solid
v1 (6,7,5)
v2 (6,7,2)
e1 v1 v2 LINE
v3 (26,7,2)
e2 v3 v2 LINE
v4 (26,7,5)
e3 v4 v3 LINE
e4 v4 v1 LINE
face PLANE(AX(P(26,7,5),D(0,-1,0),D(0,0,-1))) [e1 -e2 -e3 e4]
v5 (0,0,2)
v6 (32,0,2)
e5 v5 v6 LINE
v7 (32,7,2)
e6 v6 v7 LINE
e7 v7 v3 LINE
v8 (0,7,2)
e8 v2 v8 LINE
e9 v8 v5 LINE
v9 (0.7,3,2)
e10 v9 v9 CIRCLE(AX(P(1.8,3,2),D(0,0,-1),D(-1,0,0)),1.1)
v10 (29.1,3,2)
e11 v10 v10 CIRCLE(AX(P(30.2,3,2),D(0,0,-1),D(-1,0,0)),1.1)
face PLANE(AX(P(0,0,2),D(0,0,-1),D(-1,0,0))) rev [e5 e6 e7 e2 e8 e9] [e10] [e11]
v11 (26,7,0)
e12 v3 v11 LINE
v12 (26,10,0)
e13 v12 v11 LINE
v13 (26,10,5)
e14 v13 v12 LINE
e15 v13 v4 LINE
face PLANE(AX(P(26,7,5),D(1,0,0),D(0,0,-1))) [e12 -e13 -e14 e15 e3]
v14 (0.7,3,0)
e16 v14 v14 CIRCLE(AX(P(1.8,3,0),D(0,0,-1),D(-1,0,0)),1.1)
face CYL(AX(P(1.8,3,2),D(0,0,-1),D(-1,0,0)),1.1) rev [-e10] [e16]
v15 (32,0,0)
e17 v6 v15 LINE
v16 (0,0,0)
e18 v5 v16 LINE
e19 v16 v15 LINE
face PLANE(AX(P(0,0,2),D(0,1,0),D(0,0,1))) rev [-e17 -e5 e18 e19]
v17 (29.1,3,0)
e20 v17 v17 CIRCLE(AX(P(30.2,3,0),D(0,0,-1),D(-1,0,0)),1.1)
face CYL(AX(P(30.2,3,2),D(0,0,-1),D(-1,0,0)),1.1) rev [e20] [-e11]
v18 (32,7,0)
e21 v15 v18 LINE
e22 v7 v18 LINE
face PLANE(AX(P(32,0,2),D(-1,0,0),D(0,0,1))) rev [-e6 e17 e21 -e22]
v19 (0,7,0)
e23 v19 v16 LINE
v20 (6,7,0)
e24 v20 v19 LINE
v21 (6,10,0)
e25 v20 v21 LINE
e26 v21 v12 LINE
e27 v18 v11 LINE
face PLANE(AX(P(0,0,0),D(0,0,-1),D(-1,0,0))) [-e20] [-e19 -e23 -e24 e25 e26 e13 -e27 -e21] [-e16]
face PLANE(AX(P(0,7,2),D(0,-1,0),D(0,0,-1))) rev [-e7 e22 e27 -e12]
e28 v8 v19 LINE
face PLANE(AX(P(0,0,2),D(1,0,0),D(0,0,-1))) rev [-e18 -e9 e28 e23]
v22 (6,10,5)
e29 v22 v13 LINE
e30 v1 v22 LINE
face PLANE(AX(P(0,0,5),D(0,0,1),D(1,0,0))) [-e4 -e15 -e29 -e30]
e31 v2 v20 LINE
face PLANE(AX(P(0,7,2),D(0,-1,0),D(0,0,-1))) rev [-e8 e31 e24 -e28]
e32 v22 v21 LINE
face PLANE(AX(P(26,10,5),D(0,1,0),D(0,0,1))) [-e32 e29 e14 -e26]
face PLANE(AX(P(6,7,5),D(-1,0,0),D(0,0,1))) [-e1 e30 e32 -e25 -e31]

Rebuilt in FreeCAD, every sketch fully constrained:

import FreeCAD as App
import Part
import Sketcher


def add_polygon(sketch, points):
    """Adds a closed chain of lines whose ends are joined by coincident constraints."""
    first, n = sketch.GeometryCount, len(points)
    for a, b in zip(points, points[1:] + points[:1]):
        sketch.addGeometry(Part.LineSegment(App.Vector(*a, 0), App.Vector(*b, 0)), False)
    for i in range(n):
        sketch.addConstraint(Sketcher.Constraint("Coincident", first + i, 2, first + (i + 1) % n, 1))

doc = App.newDocument("Part")
body = doc.addObject("PartDesign::Body", "Body")

# Sketch on XY plane
sketch1 = body.newObject("Sketcher::SketchObject", "Sketch")
sketch1.AttachmentSupport = (doc.getObject("XY_Plane"), [""])
sketch1.MapMode = "FlatFace"
add_polygon(sketch1, [(0, 7), (0, 0), (32, 0), (32, 7)])  # lines 0-3
sketch1.addConstraint(Sketcher.Constraint("Vertical", 0))
sketch1.addConstraint(Sketcher.Constraint("Horizontal", 1))
sketch1.addConstraint(Sketcher.Constraint("Vertical", 2))
sketch1.addConstraint(Sketcher.Constraint("Horizontal", 3))
sketch1.addConstraint(Sketcher.Constraint("Coincident", 0, 2, -1, 1))
sketch1.addConstraint(Sketcher.Constraint("DistanceX", 1, 1, 1, 2, 32.0))
sketch1.addConstraint(Sketcher.Constraint("DistanceY", 0, 2, 0, 1, 7.0))
pad1 = body.newObject("PartDesign::Pad", "Pad")
pad1.Profile = sketch1
pad1.Length = 2

# Sketch on XY plane
sketch2 = body.newObject("Sketcher::SketchObject", "Sketch001")
sketch2.AttachmentSupport = (doc.getObject("XY_Plane"), [""])
sketch2.MapMode = "FlatFace"
sketch2.addGeometry(Part.Circle(App.Vector(30.2, 3, 0), App.Vector(0, 0, 1), 1.1), False)
sketch2.addGeometry(Part.Circle(App.Vector(1.8, 3, 0), App.Vector(0, 0, 1), 1.1), False)
sketch2.addConstraint(Sketcher.Constraint("Equal", 0, 1))
sketch2.addConstraint(Sketcher.Constraint("Horizontal", 0, 3, 1, 3))
sketch2.addConstraint(Sketcher.Constraint("Diameter", 0, 2.2))
sketch2.addConstraint(Sketcher.Constraint("DistanceY", -1, 1, 0, 3, 3.0))
sketch2.addConstraint(Sketcher.Constraint("DistanceX", -1, 1, 0, 3, 30.2))
sketch2.addConstraint(Sketcher.Constraint("DistanceX", -1, 1, 1, 3, 1.8))
pocket1 = body.newObject("PartDesign::Pocket", "Pocket")
pocket1.Profile = sketch2
pocket1.Length = 2
pocket1.Reversed = True

# Sketch on XY plane
sketch3 = body.newObject("Sketcher::SketchObject", "Sketch002")
sketch3.AttachmentSupport = (doc.getObject("XY_Plane"), [""])
sketch3.MapMode = "FlatFace"
add_polygon(sketch3, [(26, 10), (26, 7), (6, 7), (6, 10)])  # lines 0-3
sketch3.addConstraint(Sketcher.Constraint("Vertical", 0))
sketch3.addConstraint(Sketcher.Constraint("Horizontal", 1))
sketch3.addConstraint(Sketcher.Constraint("Vertical", 2))
sketch3.addConstraint(Sketcher.Constraint("Horizontal", 3))
sketch3.addConstraint(Sketcher.Constraint("DistanceX", 1, 2, 1, 1, 20.0))
sketch3.addConstraint(Sketcher.Constraint("DistanceY", 0, 2, 0, 1, 3.0))
sketch3.addConstraint(Sketcher.Constraint("DistanceX", -1, 1, 0, 2, 26.0))
sketch3.addConstraint(Sketcher.Constraint("DistanceY", -1, 1, 0, 2, 7.0))
pad2 = body.newObject("PartDesign::Pad", "Pad001")
pad2.Profile = sketch3
pad2.Length = 5

doc.recompute()
